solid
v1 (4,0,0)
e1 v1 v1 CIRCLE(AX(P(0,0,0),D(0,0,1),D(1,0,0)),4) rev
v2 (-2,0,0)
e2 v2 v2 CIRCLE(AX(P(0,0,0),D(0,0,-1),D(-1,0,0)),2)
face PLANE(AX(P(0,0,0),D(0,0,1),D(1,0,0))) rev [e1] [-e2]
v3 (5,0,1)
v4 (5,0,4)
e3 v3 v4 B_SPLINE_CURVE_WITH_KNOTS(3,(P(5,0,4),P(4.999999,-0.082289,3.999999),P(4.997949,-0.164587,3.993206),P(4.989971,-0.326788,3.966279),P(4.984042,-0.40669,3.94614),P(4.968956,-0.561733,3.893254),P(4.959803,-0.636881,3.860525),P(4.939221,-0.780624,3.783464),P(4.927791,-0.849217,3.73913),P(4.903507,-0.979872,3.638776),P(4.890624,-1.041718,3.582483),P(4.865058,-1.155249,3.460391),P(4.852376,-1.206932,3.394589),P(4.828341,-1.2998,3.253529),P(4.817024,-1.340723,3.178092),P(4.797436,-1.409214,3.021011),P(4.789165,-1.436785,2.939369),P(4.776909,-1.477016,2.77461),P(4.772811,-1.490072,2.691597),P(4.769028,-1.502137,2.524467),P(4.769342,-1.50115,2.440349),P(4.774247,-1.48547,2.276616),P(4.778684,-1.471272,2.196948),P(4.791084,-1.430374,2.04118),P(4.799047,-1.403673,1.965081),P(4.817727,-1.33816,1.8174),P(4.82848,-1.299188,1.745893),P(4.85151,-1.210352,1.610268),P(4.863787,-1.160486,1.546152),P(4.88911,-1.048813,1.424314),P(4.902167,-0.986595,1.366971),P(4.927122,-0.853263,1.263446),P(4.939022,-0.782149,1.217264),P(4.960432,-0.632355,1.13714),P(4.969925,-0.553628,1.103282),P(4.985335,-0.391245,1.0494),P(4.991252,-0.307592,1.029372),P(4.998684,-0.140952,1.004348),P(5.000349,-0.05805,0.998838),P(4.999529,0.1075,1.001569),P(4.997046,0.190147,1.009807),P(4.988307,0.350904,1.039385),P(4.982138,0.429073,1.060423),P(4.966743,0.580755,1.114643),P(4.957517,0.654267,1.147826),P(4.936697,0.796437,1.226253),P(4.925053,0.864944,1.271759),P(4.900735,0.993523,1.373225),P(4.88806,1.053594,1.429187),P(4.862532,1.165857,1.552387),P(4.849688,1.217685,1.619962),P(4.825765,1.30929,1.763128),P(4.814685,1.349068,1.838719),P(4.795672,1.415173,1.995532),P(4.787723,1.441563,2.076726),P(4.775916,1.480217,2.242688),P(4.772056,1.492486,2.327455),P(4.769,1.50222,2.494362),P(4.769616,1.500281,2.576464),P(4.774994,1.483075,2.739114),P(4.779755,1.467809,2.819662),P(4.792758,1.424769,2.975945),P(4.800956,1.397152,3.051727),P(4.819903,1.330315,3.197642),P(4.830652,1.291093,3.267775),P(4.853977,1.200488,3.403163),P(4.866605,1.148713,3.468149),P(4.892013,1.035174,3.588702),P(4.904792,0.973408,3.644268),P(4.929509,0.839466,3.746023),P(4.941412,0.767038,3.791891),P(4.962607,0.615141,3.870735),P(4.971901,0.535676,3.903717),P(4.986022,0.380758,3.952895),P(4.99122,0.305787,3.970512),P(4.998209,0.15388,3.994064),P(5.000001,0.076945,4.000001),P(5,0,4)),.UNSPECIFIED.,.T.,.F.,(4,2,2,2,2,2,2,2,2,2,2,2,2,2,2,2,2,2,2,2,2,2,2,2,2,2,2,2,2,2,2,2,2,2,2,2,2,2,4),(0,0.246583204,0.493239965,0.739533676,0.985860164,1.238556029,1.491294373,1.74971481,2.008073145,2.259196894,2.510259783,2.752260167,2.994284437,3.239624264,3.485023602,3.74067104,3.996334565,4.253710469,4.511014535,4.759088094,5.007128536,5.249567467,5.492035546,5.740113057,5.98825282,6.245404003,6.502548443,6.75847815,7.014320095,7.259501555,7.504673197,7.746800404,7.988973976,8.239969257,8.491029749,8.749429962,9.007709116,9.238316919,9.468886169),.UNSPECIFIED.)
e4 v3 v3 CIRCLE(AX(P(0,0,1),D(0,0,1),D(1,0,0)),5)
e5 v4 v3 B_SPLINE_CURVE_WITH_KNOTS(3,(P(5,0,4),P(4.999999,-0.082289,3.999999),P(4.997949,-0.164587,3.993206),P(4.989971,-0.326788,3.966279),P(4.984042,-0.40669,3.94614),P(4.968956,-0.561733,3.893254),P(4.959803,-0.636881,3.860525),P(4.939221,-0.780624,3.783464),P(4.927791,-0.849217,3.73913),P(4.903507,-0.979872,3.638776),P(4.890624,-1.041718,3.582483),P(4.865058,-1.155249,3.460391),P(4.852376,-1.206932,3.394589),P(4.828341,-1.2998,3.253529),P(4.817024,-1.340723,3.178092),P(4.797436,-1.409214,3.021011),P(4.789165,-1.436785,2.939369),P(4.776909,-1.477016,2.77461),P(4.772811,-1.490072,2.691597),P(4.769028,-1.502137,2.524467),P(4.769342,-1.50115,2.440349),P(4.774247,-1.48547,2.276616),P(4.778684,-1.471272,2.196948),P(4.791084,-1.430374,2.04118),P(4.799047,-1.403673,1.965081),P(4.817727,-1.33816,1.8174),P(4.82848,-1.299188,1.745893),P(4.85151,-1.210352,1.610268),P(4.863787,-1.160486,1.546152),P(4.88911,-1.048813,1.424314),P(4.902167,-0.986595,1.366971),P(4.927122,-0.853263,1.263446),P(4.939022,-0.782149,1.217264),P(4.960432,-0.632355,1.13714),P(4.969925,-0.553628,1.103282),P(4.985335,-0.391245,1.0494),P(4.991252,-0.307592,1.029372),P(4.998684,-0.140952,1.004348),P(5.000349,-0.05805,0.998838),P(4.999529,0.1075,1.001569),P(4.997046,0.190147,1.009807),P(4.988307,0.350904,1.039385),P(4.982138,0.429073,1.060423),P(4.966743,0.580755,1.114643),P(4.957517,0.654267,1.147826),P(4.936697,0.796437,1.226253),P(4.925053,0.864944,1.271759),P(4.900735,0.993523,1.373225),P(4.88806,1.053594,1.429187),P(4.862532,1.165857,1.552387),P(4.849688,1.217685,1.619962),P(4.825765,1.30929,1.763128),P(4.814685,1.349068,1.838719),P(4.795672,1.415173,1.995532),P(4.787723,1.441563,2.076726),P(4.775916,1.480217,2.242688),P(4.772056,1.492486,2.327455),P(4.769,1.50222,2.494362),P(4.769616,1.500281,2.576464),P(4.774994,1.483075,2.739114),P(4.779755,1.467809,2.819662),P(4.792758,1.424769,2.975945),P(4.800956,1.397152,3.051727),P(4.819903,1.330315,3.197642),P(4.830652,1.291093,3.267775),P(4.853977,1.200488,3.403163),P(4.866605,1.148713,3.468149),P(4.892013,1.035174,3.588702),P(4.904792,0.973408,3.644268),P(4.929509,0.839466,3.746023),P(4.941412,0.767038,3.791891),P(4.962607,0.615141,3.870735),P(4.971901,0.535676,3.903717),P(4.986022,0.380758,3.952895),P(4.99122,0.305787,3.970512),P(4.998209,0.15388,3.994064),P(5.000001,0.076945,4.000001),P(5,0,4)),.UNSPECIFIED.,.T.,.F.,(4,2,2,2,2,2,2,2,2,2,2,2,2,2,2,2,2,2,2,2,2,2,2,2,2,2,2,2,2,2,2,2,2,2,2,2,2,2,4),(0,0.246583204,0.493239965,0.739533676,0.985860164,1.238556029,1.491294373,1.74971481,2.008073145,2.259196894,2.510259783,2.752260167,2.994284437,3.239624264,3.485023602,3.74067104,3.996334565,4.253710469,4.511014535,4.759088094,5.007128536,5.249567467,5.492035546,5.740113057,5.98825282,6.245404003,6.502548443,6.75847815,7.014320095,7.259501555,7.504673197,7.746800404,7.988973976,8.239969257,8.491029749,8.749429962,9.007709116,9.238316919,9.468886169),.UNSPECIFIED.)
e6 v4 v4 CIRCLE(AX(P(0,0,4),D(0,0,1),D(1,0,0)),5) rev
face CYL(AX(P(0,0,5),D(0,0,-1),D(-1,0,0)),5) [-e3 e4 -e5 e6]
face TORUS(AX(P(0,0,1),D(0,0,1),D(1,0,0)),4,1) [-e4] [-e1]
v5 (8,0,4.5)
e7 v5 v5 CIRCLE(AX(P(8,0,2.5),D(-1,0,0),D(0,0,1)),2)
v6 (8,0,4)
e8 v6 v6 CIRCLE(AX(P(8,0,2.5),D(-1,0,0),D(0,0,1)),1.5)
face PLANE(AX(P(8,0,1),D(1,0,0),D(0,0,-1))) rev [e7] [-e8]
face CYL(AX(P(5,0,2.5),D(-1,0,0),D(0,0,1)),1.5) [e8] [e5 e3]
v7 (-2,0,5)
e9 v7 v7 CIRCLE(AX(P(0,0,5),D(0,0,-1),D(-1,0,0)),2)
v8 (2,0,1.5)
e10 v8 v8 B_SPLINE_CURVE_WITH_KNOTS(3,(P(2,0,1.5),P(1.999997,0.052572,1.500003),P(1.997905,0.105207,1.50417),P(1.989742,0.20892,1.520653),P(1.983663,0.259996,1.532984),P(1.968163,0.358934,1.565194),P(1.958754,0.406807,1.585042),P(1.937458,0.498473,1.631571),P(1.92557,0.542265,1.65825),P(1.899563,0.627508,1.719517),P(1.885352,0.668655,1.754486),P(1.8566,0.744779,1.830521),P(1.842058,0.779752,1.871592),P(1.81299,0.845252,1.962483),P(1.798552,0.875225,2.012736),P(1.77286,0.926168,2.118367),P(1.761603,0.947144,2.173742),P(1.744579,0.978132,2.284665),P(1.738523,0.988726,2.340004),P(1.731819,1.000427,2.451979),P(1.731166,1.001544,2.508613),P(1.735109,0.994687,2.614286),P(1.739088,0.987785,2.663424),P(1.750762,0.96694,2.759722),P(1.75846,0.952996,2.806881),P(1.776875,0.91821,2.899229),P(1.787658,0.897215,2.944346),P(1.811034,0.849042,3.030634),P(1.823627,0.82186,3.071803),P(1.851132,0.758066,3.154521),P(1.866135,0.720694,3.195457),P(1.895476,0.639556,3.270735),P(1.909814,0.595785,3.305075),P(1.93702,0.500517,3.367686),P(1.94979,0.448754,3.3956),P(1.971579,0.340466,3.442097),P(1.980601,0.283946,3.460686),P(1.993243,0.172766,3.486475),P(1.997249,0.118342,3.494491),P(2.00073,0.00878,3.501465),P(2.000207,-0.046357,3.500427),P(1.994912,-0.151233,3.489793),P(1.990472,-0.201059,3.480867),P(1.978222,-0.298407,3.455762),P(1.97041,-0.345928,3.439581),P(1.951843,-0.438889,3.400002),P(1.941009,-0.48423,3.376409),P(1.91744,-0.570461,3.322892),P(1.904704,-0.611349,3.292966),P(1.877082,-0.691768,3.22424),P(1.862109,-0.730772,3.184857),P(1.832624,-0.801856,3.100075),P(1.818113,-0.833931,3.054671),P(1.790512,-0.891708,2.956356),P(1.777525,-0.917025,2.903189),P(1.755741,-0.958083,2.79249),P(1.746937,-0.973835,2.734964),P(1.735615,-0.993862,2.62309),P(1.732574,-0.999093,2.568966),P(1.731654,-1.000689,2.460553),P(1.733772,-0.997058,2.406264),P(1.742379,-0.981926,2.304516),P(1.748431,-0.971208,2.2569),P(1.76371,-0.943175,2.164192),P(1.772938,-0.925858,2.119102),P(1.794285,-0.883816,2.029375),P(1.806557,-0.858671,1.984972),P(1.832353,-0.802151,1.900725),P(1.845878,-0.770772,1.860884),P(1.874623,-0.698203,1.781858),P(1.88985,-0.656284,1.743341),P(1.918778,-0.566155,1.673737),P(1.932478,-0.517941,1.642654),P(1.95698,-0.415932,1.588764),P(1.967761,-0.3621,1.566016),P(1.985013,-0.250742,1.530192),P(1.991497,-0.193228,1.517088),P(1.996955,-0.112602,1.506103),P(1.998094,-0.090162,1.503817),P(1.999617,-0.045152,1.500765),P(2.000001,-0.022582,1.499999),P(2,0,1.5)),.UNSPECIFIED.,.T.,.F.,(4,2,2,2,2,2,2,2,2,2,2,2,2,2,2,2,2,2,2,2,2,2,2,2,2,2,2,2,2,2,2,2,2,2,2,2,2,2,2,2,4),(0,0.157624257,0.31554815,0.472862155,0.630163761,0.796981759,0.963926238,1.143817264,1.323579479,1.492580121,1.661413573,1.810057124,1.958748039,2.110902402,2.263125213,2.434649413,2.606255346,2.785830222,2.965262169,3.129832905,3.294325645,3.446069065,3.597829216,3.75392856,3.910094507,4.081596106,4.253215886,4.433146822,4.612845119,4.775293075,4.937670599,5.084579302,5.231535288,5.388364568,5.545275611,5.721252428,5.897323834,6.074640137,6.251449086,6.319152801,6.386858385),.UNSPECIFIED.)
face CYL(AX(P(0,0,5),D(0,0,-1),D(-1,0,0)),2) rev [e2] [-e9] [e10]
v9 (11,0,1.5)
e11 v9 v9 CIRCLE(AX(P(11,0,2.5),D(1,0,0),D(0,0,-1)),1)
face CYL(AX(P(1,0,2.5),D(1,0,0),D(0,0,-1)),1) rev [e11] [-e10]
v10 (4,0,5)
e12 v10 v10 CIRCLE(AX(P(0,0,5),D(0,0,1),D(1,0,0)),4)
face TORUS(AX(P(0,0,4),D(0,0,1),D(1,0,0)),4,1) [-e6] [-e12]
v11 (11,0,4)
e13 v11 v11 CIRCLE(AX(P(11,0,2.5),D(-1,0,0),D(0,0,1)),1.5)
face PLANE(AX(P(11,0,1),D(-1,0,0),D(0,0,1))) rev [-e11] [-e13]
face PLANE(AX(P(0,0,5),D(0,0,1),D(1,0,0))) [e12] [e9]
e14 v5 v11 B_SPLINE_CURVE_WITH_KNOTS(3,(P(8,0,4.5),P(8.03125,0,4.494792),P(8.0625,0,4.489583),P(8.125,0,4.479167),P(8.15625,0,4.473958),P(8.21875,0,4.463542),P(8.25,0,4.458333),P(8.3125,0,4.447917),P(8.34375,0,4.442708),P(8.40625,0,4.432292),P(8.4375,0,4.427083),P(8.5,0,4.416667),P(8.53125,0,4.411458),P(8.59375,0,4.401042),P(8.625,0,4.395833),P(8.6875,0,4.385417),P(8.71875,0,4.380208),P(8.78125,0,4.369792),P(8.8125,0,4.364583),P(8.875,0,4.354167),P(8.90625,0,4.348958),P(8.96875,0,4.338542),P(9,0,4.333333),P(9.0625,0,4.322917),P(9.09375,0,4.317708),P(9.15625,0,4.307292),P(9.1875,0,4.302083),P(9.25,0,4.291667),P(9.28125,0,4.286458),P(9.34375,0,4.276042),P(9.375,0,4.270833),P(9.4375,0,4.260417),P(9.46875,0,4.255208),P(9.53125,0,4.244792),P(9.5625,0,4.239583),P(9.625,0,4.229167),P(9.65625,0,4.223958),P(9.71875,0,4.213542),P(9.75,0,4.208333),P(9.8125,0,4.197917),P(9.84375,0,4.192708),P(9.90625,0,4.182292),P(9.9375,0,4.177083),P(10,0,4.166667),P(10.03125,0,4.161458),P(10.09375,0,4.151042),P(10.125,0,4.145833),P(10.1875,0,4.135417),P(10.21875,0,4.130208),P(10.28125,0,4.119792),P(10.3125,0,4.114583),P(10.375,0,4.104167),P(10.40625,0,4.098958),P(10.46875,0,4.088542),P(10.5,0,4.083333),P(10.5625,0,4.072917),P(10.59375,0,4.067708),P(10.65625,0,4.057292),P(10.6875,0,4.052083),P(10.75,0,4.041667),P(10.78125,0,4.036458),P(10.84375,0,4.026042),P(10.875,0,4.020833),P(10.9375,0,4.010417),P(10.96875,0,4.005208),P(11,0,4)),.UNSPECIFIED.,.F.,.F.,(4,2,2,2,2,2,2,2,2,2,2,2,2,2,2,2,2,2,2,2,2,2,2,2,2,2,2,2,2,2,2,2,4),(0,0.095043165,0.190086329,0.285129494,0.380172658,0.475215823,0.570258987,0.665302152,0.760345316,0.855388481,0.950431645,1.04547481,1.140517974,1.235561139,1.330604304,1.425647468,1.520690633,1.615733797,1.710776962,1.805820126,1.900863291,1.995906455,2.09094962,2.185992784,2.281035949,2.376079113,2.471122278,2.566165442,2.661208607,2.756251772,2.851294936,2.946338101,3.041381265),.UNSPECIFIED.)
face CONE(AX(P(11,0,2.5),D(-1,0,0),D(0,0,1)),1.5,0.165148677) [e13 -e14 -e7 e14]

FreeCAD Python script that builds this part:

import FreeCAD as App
import Part
import Sketcher

V = App.Vector
Q = App.Units.Quantity


def edges_at(feature, points):
    """Names of the edges that pass closest to the given points."""
    edges = feature.Shape.Edges
    near = lambda p: min(range(len(edges)), key=lambda i: edges[i].distToShape(Part.Vertex(*p))[0])
    return sorted({f"Edge{near(p) + 1}" for p in points})


def add_polygon(sketch, points):
    """Adds a closed chain of lines whose ends are joined by coincident constraints."""
    first, n = sketch.GeometryCount, len(points)
    for a, b in zip(points, points[1:] + points[:1]):
        sketch.addGeometry(Part.LineSegment(App.Vector(*a, 0), App.Vector(*b, 0)), False)
    for i in range(n):
        sketch.addConstraint(Sketcher.Constraint("Coincident", first + i, 2, first + (i + 1) % n, 1))

doc = App.newDocument("Part")
body = doc.addObject("PartDesign::Body", "Body")

# Sketch on XY plane
sketch1 = body.newObject("Sketcher::SketchObject", "Sketch")
sketch1.AttachmentSupport = (doc.getObject("XY_Plane"), [""])
sketch1.MapMode = "FlatFace"
sketch1.addGeometry(Part.Circle(V(0, 0, 0), V(0, 0, 1), 5), False)
sketch1.addConstraint(Sketcher.Constraint("Coincident", 0, 3, -1, 1))
sketch1.addConstraint(Sketcher.Constraint("Diameter", 0, Q("10 mm")))
pad1 = body.newObject("PartDesign::Pad", "Pad")
pad1.Profile = sketch1
pad1.Length = 5
doc.recompute()

fillet = body.newObject("PartDesign::Fillet", "Fillet")
fillet.Base = (pad1, edges_at(pad1, [(-5, 0, 0), (-5, 0, 5)]))
fillet.Radius = 1

# Sketch on XY plane
sketch2 = body.newObject("Sketcher::SketchObject", "Sketch001")
sketch2.AttachmentSupport = (doc.getObject("XY_Plane"), [""])
sketch2.MapMode = "FlatFace"
sketch2.addGeometry(Part.Circle(V(0, 0, 0), V(0, 0, 1), 2), False)
sketch2.addConstraint(Sketcher.Constraint("Coincident", 0, 3, -1, 1))
sketch2.addConstraint(Sketcher.Constraint("Diameter", 0, Q("4 mm")))
pocket1 = body.newObject("PartDesign::Pocket", "Pocket")
pocket1.Profile = sketch2
pocket1.Length = 5
pocket1.Reversed = True

# Sketch on XZ plane
sketch3 = body.newObject("Sketcher::SketchObject", "Sketch002")
sketch3.AttachmentSupport = (doc.getObject("XZ_Plane"), [""])
sketch3.MapMode = "FlatFace"
add_polygon(sketch3, [(8, 1), (4.094511, 1), (4.094511, 2.5), (11, 2.5), (11, 1), (8, 0.5)])  # lines 0-5
sketch3.addGeometry(Part.LineSegment(V(4.094511, 2.5, 0), V(11, 2.5, 0)), True)  # axis
sketch3.addConstraint(Sketcher.Constraint("Horizontal", 0))
sketch3.addConstraint(Sketcher.Constraint("Vertical", 1))
sketch3.addConstraint(Sketcher.Constraint("Horizontal", 2))
sketch3.addConstraint(Sketcher.Constraint("Vertical", 3))
sketch3.addConstraint(Sketcher.Constraint("Vertical", 5))
sketch3.addConstraint(Sketcher.Constraint("Horizontal", 6))
sketch3.addConstraint(Sketcher.Constraint("Coincident", 6, 1, 1, 2))
sketch3.addConstraint(Sketcher.Constraint("Horizontal", 0, 2, 3, 2))
sketch3.addConstraint(Sketcher.Constraint("Vertical", 3, 2, 6, 2))
sketch3.addConstraint(Sketcher.Constraint("DistanceY", 1, 1, 1, 2, Q("1.5 mm")))
sketch3.addConstraint(Sketcher.Constraint("DistanceY", 5, 1, 5, 2, Q("0.5 mm")))
sketch3.addConstraint(Sketcher.Constraint("DistanceY", -1, 1, 0, 2, Q("1 mm")))
sketch3.addConstraint(Sketcher.Constraint("DistanceX", -1, 1, 2, 2, Q("11 mm")))
sketch3.addConstraint(Sketcher.Constraint("DistanceX", -1, 1, 4, 2, Q("8 mm")))
sketch3.addConstraint(Sketcher.Constraint("DistanceX", 0, 2, 0, 1, Q("3.905489 mm")))
revolution = body.newObject("PartDesign::Revolution", "Revolution")
revolution.Profile = sketch3
revolution.ReferenceAxis = (sketch3, ["Axis0"])
revolution.Angle = 360

# Sketch on YZ plane
sketch4 = body.newObject("Sketcher::SketchObject", "Sketch003")
sketch4.AttachmentSupport = (doc.getObject("YZ_Plane"), [""])
sketch4.MapMode = "FlatFace"
sketch4.AttachmentOffset = App.Placement(V(0, 0, 11), App.Rotation())
sketch4.addGeometry(Part.Circle(V(0, 2.5, 0), V(0, 0, 1), 1), False)
sketch4.addConstraint(Sketcher.Constraint("PointOnObject", 0, 3, -2))
sketch4.addConstraint(Sketcher.Constraint("Diameter", 0, Q("2 mm")))
sketch4.addConstraint(Sketcher.Constraint("DistanceY", -1, 1, 0, 3, Q("2.5 mm")))
pocket2 = body.newObject("PartDesign::Pocket", "Pocket001")
pocket2.Profile = sketch4
pocket2.Length = 10

doc.recompute()
